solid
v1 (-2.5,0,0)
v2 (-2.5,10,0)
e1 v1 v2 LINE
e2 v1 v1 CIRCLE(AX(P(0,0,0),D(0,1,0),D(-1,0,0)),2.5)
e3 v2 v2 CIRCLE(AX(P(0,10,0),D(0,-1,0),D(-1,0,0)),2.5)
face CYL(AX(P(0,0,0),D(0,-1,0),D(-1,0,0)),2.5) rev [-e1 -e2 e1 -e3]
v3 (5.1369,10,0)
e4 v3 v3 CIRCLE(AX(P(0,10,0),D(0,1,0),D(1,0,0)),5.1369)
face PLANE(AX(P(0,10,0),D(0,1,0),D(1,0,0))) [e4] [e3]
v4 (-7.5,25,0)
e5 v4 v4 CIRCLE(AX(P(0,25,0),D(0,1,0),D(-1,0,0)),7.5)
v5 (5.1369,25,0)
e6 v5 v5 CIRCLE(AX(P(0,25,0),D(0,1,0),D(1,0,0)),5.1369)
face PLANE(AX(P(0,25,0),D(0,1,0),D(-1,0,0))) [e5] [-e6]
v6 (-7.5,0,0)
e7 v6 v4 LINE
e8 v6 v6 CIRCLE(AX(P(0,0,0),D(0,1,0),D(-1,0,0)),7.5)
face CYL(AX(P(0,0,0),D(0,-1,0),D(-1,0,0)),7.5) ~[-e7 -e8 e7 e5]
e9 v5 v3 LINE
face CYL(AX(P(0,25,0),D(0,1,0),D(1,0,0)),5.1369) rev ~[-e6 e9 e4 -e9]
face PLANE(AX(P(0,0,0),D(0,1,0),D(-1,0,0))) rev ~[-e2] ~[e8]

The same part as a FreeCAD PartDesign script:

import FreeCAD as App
import Part
import Sketcher
from FreeCAD import Vector

doc = App.newDocument("Part")
body = doc.addObject("PartDesign::Body", "Body")

# Sketch on XZ plane
sketch1 = doc.addObject("Sketcher::SketchObject", "Sketch")
body.addObject(sketch1)
sketch1.AttachmentSupport = (doc.XZ_Plane, [""])
sketch1.MapMode = "FlatFace"
sketch1.addGeometry(Part.Circle(Vector(0, 0, 0), Vector(0, 0, 1), 7.5), False)
sketch1.addGeometry(Part.Circle(Vector(0, 0, 0), Vector(0, 0, 1), 2.5), False)
sketch1.addConstraint(Sketcher.Constraint("Coincident", 0, 3, -1, 1))
sketch1.addConstraint(Sketcher.Constraint("Coincident", 1, 3, -1, 1))
sketch1.addConstraint(Sketcher.Constraint("Diameter", 0, 15.0))
sketch1.addConstraint(Sketcher.Constraint("Diameter", 1, 5.0))
pad1 = doc.addObject("PartDesign::Pad", "Pad")
body.addObject(pad1)
pad1.Profile = sketch1
pad1.Length = 25
pad1.Reversed = True

# Sketch on XZ plane
sketch2 = doc.addObject("Sketcher::SketchObject", "Sketch001")
body.addObject(sketch2)
sketch2.AttachmentSupport = (doc.XZ_Plane, [""])
sketch2.MapMode = "FlatFace"
sketch2.AttachmentOffset = App.Placement(Vector(0, 0, -25), App.Rotation())
sketch2.addGeometry(Part.Circle(Vector(0, 0, 0), Vector(0, 0, 1), 5.1369), False)
sketch2.addConstraint(Sketcher.Constraint("Coincident", 0, 3, -1, 1))
sketch2.addConstraint(Sketcher.Constraint("Diameter", 0, 10.2738))
pocket1 = doc.addObject("PartDesign::Pocket", "Pocket")
body.addObject(pocket1)
pocket1.Profile = sketch2
pocket1.Length = 15
pocket1.Reversed = True

doc.recompute()
